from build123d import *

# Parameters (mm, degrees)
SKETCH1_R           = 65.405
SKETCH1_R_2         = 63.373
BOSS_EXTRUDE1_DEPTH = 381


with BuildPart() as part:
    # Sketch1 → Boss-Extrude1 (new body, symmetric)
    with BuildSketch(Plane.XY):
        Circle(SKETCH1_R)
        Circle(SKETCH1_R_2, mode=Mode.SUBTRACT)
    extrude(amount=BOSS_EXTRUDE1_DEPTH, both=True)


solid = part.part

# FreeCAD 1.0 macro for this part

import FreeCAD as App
import Part
import Sketcher

V = App.Vector
Q = App.Units.Quantity

doc = App.newDocument("Part")
params = doc.addObject("Spreadsheet::Sheet", "Params")
for row, (alias, value) in enumerate([
    ("sketch1_diameter", "5.15 in"),
    ("sketch1_diameter2", "4.99 in"),
    ("pad1_length", "30 in"),
], start=1):
    params.set(f"A{row}", alias)
    params.set(f"B{row}", "=" + value)
    params.setAlias(f"B{row}", alias)

body = doc.addObject("PartDesign::Body", "Body")

# Sketch on XY plane
sketch1 = body.newObject("Sketcher::SketchObject", "Sketch")
sketch1.AttachmentSupport = (doc.getObject("XY_Plane"), [""])
sketch1.MapMode = "FlatFace"
sketch1.addGeometry([
    Part.Circle(V(0, 0, 0), V(0, 0, 1), 65),
    Part.Circle(V(0, 0, 0), V(0, 0, 1), 63),
], False)
sketch1.addConstraint([
    Sketcher.Constraint("Coincident", 0, 3, -1, 1),
    Sketcher.Constraint("Coincident", 1, 3, -1, 1),
    Sketcher.Constraint("Diameter", 0, Q("5.15 in")),
    Sketcher.Constraint("Diameter", 1, Q("4.99 in")),
])
sketch1.setExpression("Constraints[2]", "Params.sketch1_diameter")
sketch1.setExpression("Constraints[3]", "Params.sketch1_diameter2")
pad1 = body.newObject("PartDesign::Pad", "Pad")
pad1.Profile = sketch1
pad1.setExpression("Length", "Params.pad1_length")
pad1.Midplane = True

doc.recompute()
